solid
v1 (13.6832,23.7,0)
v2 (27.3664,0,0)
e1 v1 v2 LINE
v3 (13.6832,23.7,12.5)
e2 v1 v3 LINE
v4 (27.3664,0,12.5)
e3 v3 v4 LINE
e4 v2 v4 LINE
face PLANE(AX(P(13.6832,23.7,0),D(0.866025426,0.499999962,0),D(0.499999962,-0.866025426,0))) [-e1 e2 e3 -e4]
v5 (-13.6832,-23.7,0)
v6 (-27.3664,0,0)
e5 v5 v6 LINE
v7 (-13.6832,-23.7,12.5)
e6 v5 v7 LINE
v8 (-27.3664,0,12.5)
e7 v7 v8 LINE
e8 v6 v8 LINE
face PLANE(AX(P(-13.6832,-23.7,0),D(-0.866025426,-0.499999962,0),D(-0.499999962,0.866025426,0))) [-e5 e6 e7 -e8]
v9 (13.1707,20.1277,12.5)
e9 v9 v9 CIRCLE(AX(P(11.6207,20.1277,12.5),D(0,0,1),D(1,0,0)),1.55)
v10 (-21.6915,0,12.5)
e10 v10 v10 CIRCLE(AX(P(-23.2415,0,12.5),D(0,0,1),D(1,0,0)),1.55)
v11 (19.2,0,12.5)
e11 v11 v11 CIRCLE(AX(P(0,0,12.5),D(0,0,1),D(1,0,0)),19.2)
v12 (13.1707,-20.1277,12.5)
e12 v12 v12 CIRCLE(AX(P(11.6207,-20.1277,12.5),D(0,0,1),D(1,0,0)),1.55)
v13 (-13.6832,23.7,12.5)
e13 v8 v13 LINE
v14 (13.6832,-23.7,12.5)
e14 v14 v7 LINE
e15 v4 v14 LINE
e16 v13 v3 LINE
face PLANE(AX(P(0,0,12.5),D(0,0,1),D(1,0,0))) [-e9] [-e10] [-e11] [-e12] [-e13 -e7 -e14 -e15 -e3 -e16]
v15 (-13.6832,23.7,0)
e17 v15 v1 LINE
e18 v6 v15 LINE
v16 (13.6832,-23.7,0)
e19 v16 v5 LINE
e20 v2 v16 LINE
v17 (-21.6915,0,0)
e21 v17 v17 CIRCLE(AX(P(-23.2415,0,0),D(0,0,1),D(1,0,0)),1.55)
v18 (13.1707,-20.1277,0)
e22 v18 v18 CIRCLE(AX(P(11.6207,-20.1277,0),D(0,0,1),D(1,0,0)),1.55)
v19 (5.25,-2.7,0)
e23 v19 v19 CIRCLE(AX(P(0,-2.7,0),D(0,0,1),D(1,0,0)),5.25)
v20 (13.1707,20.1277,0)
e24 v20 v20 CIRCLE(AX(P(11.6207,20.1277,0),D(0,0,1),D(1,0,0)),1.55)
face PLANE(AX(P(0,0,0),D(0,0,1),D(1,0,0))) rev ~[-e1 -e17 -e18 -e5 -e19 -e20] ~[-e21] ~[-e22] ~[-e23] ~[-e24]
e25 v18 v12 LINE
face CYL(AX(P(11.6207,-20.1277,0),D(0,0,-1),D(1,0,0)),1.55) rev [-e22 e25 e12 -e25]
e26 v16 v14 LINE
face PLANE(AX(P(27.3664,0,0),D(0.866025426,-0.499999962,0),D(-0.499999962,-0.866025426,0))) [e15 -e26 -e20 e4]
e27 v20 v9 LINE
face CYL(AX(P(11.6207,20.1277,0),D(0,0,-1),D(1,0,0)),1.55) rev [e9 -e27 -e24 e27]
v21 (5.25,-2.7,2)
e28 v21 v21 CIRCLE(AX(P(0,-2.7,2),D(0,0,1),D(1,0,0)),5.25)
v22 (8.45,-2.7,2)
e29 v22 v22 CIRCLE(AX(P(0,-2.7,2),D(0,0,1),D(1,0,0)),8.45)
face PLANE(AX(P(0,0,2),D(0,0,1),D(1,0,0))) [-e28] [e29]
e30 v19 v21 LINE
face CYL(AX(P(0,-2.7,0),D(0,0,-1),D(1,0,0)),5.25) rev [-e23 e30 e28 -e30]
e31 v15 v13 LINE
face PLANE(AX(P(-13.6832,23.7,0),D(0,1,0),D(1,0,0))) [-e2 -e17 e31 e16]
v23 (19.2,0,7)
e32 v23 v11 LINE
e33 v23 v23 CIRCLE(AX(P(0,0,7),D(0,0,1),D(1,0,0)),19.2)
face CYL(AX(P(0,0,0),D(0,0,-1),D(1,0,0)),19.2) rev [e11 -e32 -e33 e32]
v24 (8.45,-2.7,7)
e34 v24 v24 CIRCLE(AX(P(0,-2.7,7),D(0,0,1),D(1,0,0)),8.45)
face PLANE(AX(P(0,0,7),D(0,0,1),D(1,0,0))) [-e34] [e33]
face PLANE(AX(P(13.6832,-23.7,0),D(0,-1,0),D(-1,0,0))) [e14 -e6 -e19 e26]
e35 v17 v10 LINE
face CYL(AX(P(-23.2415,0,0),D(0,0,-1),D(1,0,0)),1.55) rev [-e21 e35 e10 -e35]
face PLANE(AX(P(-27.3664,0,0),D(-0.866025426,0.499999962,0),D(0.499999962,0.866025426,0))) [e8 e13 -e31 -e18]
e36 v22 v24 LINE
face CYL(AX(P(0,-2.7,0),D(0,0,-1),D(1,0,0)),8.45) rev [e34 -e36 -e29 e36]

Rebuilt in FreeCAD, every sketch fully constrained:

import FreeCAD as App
import Part
import Sketcher
Q = App.Units.Quantity

doc = App.newDocument("Part")
params = doc.addObject("Spreadsheet::Sheet", "Params")
for row, (alias, value) in enumerate([
    ("sketch1_diameter", "16.9 mm"),
    ("sketch1_diameter2", "10.5 mm"),
    ("pad1_length", "2 mm"),
    ("sketch2_diameter", "16.9 mm"),
    ("sketch2_diameter2", "38.4 mm"),
    ("pad2_length", "7 mm"),
    ("sketch3_diameter", "3.1 mm"),
    ("sketch3_diameter2", "38.4 mm"),
    ("pad3_length", "12.5 mm"),
], start=1):
    params.set(f"A{row}", alias)
    params.set(f"B{row}", "=" + value)
    params.setAlias(f"B{row}", alias)

body = doc.addObject("PartDesign::Body", "Body")

sketch1 = body.newObject("Sketcher::SketchObject", "Sketch")
sketch1.AttachmentSupport = (doc.getObject("XY_Plane"), [""])
sketch1.MapMode = "FlatFace"
sketch1.addGeometry([
    Part.Circle(App.Vector(0, -3, 0), App.Vector(0, 0, 1), 8),
    Part.Circle(App.Vector(0, -3, 0), App.Vector(0, 0, 1), 5),
], False)
sketch1.addConstraint([
    Sketcher.Constraint("Coincident", 1, 3, 0, 3),
    Sketcher.Constraint("PointOnObject", 0, 3, -2),
    Sketcher.Constraint("Diameter", 0, Q("16.9 mm")),
    Sketcher.Constraint("Diameter", 1, Q("10.5 mm")),
    Sketcher.Constraint("DistanceY", 0, 3, -1, 1, Q("2.7 mm")),
])
sketch1.setExpression("Constraints[2]", "Params.sketch1_diameter")
sketch1.setExpression("Constraints[3]", "Params.sketch1_diameter2")
pad1 = body.newObject("PartDesign::Pad", "Pad")
pad1.Profile = sketch1
pad1.setExpression("Length", "Params.pad1_length")

sketch2 = body.newObject("Sketcher::SketchObject", "Sketch001")
sketch2.AttachmentSupport = (doc.getObject("XY_Plane"), [""])
sketch2.MapMode = "FlatFace"
sketch2.addGeometry([
    Part.Circle(App.Vector(0, 0, 0), App.Vector(0, 0, 1), 19),
    Part.Circle(App.Vector(0, -3, 0), App.Vector(0, 0, 1), 8),
], False)
sketch2.addConstraint([
    Sketcher.Constraint("Coincident", 0, 3, -1, 1),
    Sketcher.Constraint("PointOnObject", 1, 3, -2),
    Sketcher.Constraint("Diameter", 1, Q("16.9 mm")),
    Sketcher.Constraint("Diameter", 0, Q("38.4 mm")),
    Sketcher.Constraint("DistanceY", 1, 3, -1, 1, Q("2.7 mm")),
])
sketch2.setExpression("Constraints[2]", "Params.sketch2_diameter")
sketch2.setExpression("Constraints[3]", "Params.sketch2_diameter2")
pad2 = body.newObject("PartDesign::Pad", "Pad001")
pad2.Profile = sketch2
pad2.setExpression("Length", "Params.pad2_length")

sketch3 = body.newObject("Sketcher::SketchObject", "Sketch002")
sketch3.AttachmentSupport = (doc.getObject("XY_Plane"), [""])
sketch3.MapMode = "FlatFace"
sketch3.addGeometry([
    Part.LineSegment(App.Vector(13.7, 23.7, 0), App.Vector(-13.7, 23.7, 0)),
    Part.LineSegment(App.Vector(-13.7, 23.7, 0), App.Vector(-27.4, 0, 0)),
    Part.LineSegment(App.Vector(-27.4, 0, 0), App.Vector(-13.7, -23.7, 0)),
    Part.LineSegment(App.Vector(-13.7, -23.7, 0), App.Vector(13.7, -23.7, 0)),
    Part.LineSegment(App.Vector(13.7, -23.7, 0), App.Vector(27.4, 0, 0)),
    Part.LineSegment(App.Vector(27.4, 0, 0), App.Vector(13.7, 23.7, 0)),
    Part.Circle(App.Vector(-23.2, 0, 0), App.Vector(0, 0, 1), 1.6),
    Part.Circle(App.Vector(0, 0, 0), App.Vector(0, 0, 1), 19.2),
    Part.Circle(App.Vector(11.6, -20.1, 0), App.Vector(0, 0, 1), 1.6),
    Part.Circle(App.Vector(11.6, 20.1, 0), App.Vector(0, 0, 1), 1.6),
], False)
sketch3.addConstraint([
    Sketcher.Constraint("Coincident", 0, 2, 1, 1),
    Sketcher.Constraint("Coincident", 1, 2, 2, 1),
    Sketcher.Constraint("Coincident", 2, 2, 3, 1),
    Sketcher.Constraint("Coincident", 3, 2, 4, 1),
    Sketcher.Constraint("Coincident", 4, 2, 5, 1),
    Sketcher.Constraint("Coincident", 5, 2, 0, 1),
    Sketcher.Constraint("Horizontal", 0),
    Sketcher.Constraint("Horizontal", 3),
    Sketcher.Constraint("Coincident", 7, 3, -1, 1),
    Sketcher.Constraint("Equal", 6, 8),
    Sketcher.Constraint("Equal", 8, 9),
    Sketcher.Constraint("Symmetric", 0, 2, 3, 2, -1, 1),
    Sketcher.Constraint("Symmetric", 1, 2, 4, 2, -1, 1),
    Sketcher.Constraint("Symmetric", 8, 3, 9, 3, -1),
    Sketcher.Constraint("PointOnObject", 6, 3, -1),
    Sketcher.Constraint("PointOnObject", 1, 2, -1),
    Sketcher.Constraint("Parallel", 2, 5),
    Sketcher.Constraint("Vertical", 0, 2, 2, 2),
    Sketcher.Constraint("Diameter", 6, Q("3.1 mm")),
    Sketcher.Constraint("Diameter", 7, Q("38.4 mm")),
    Sketcher.Constraint("Angle", 1, Q("-120 deg")),
    Sketcher.Constraint("DistanceY", -1, 1, 0, 2, Q("23.7 mm")),
    Sketcher.Constraint("DistanceX", 0, 2, 0, 1, Q("27.3664 mm")),
    Sketcher.Constraint("DistanceX", 0, 2, 9, 3, Q("25.304 mm")),
    Sketcher.Constraint("DistanceX", 1, 2, 6, 3, Q("4.125 mm")),
    Sketcher.Constraint("DistanceY", 8, 3, -1, 1, Q("20.1277 mm")),
])
sketch3.setExpression("Constraints[18]", "Params.sketch3_diameter")
sketch3.setExpression("Constraints[19]", "Params.sketch3_diameter2")
pad3 = body.newObject("PartDesign::Pad", "Pad002")
pad3.Profile = sketch3
pad3.setExpression("Length", "Params.pad3_length")

doc.recompute()
